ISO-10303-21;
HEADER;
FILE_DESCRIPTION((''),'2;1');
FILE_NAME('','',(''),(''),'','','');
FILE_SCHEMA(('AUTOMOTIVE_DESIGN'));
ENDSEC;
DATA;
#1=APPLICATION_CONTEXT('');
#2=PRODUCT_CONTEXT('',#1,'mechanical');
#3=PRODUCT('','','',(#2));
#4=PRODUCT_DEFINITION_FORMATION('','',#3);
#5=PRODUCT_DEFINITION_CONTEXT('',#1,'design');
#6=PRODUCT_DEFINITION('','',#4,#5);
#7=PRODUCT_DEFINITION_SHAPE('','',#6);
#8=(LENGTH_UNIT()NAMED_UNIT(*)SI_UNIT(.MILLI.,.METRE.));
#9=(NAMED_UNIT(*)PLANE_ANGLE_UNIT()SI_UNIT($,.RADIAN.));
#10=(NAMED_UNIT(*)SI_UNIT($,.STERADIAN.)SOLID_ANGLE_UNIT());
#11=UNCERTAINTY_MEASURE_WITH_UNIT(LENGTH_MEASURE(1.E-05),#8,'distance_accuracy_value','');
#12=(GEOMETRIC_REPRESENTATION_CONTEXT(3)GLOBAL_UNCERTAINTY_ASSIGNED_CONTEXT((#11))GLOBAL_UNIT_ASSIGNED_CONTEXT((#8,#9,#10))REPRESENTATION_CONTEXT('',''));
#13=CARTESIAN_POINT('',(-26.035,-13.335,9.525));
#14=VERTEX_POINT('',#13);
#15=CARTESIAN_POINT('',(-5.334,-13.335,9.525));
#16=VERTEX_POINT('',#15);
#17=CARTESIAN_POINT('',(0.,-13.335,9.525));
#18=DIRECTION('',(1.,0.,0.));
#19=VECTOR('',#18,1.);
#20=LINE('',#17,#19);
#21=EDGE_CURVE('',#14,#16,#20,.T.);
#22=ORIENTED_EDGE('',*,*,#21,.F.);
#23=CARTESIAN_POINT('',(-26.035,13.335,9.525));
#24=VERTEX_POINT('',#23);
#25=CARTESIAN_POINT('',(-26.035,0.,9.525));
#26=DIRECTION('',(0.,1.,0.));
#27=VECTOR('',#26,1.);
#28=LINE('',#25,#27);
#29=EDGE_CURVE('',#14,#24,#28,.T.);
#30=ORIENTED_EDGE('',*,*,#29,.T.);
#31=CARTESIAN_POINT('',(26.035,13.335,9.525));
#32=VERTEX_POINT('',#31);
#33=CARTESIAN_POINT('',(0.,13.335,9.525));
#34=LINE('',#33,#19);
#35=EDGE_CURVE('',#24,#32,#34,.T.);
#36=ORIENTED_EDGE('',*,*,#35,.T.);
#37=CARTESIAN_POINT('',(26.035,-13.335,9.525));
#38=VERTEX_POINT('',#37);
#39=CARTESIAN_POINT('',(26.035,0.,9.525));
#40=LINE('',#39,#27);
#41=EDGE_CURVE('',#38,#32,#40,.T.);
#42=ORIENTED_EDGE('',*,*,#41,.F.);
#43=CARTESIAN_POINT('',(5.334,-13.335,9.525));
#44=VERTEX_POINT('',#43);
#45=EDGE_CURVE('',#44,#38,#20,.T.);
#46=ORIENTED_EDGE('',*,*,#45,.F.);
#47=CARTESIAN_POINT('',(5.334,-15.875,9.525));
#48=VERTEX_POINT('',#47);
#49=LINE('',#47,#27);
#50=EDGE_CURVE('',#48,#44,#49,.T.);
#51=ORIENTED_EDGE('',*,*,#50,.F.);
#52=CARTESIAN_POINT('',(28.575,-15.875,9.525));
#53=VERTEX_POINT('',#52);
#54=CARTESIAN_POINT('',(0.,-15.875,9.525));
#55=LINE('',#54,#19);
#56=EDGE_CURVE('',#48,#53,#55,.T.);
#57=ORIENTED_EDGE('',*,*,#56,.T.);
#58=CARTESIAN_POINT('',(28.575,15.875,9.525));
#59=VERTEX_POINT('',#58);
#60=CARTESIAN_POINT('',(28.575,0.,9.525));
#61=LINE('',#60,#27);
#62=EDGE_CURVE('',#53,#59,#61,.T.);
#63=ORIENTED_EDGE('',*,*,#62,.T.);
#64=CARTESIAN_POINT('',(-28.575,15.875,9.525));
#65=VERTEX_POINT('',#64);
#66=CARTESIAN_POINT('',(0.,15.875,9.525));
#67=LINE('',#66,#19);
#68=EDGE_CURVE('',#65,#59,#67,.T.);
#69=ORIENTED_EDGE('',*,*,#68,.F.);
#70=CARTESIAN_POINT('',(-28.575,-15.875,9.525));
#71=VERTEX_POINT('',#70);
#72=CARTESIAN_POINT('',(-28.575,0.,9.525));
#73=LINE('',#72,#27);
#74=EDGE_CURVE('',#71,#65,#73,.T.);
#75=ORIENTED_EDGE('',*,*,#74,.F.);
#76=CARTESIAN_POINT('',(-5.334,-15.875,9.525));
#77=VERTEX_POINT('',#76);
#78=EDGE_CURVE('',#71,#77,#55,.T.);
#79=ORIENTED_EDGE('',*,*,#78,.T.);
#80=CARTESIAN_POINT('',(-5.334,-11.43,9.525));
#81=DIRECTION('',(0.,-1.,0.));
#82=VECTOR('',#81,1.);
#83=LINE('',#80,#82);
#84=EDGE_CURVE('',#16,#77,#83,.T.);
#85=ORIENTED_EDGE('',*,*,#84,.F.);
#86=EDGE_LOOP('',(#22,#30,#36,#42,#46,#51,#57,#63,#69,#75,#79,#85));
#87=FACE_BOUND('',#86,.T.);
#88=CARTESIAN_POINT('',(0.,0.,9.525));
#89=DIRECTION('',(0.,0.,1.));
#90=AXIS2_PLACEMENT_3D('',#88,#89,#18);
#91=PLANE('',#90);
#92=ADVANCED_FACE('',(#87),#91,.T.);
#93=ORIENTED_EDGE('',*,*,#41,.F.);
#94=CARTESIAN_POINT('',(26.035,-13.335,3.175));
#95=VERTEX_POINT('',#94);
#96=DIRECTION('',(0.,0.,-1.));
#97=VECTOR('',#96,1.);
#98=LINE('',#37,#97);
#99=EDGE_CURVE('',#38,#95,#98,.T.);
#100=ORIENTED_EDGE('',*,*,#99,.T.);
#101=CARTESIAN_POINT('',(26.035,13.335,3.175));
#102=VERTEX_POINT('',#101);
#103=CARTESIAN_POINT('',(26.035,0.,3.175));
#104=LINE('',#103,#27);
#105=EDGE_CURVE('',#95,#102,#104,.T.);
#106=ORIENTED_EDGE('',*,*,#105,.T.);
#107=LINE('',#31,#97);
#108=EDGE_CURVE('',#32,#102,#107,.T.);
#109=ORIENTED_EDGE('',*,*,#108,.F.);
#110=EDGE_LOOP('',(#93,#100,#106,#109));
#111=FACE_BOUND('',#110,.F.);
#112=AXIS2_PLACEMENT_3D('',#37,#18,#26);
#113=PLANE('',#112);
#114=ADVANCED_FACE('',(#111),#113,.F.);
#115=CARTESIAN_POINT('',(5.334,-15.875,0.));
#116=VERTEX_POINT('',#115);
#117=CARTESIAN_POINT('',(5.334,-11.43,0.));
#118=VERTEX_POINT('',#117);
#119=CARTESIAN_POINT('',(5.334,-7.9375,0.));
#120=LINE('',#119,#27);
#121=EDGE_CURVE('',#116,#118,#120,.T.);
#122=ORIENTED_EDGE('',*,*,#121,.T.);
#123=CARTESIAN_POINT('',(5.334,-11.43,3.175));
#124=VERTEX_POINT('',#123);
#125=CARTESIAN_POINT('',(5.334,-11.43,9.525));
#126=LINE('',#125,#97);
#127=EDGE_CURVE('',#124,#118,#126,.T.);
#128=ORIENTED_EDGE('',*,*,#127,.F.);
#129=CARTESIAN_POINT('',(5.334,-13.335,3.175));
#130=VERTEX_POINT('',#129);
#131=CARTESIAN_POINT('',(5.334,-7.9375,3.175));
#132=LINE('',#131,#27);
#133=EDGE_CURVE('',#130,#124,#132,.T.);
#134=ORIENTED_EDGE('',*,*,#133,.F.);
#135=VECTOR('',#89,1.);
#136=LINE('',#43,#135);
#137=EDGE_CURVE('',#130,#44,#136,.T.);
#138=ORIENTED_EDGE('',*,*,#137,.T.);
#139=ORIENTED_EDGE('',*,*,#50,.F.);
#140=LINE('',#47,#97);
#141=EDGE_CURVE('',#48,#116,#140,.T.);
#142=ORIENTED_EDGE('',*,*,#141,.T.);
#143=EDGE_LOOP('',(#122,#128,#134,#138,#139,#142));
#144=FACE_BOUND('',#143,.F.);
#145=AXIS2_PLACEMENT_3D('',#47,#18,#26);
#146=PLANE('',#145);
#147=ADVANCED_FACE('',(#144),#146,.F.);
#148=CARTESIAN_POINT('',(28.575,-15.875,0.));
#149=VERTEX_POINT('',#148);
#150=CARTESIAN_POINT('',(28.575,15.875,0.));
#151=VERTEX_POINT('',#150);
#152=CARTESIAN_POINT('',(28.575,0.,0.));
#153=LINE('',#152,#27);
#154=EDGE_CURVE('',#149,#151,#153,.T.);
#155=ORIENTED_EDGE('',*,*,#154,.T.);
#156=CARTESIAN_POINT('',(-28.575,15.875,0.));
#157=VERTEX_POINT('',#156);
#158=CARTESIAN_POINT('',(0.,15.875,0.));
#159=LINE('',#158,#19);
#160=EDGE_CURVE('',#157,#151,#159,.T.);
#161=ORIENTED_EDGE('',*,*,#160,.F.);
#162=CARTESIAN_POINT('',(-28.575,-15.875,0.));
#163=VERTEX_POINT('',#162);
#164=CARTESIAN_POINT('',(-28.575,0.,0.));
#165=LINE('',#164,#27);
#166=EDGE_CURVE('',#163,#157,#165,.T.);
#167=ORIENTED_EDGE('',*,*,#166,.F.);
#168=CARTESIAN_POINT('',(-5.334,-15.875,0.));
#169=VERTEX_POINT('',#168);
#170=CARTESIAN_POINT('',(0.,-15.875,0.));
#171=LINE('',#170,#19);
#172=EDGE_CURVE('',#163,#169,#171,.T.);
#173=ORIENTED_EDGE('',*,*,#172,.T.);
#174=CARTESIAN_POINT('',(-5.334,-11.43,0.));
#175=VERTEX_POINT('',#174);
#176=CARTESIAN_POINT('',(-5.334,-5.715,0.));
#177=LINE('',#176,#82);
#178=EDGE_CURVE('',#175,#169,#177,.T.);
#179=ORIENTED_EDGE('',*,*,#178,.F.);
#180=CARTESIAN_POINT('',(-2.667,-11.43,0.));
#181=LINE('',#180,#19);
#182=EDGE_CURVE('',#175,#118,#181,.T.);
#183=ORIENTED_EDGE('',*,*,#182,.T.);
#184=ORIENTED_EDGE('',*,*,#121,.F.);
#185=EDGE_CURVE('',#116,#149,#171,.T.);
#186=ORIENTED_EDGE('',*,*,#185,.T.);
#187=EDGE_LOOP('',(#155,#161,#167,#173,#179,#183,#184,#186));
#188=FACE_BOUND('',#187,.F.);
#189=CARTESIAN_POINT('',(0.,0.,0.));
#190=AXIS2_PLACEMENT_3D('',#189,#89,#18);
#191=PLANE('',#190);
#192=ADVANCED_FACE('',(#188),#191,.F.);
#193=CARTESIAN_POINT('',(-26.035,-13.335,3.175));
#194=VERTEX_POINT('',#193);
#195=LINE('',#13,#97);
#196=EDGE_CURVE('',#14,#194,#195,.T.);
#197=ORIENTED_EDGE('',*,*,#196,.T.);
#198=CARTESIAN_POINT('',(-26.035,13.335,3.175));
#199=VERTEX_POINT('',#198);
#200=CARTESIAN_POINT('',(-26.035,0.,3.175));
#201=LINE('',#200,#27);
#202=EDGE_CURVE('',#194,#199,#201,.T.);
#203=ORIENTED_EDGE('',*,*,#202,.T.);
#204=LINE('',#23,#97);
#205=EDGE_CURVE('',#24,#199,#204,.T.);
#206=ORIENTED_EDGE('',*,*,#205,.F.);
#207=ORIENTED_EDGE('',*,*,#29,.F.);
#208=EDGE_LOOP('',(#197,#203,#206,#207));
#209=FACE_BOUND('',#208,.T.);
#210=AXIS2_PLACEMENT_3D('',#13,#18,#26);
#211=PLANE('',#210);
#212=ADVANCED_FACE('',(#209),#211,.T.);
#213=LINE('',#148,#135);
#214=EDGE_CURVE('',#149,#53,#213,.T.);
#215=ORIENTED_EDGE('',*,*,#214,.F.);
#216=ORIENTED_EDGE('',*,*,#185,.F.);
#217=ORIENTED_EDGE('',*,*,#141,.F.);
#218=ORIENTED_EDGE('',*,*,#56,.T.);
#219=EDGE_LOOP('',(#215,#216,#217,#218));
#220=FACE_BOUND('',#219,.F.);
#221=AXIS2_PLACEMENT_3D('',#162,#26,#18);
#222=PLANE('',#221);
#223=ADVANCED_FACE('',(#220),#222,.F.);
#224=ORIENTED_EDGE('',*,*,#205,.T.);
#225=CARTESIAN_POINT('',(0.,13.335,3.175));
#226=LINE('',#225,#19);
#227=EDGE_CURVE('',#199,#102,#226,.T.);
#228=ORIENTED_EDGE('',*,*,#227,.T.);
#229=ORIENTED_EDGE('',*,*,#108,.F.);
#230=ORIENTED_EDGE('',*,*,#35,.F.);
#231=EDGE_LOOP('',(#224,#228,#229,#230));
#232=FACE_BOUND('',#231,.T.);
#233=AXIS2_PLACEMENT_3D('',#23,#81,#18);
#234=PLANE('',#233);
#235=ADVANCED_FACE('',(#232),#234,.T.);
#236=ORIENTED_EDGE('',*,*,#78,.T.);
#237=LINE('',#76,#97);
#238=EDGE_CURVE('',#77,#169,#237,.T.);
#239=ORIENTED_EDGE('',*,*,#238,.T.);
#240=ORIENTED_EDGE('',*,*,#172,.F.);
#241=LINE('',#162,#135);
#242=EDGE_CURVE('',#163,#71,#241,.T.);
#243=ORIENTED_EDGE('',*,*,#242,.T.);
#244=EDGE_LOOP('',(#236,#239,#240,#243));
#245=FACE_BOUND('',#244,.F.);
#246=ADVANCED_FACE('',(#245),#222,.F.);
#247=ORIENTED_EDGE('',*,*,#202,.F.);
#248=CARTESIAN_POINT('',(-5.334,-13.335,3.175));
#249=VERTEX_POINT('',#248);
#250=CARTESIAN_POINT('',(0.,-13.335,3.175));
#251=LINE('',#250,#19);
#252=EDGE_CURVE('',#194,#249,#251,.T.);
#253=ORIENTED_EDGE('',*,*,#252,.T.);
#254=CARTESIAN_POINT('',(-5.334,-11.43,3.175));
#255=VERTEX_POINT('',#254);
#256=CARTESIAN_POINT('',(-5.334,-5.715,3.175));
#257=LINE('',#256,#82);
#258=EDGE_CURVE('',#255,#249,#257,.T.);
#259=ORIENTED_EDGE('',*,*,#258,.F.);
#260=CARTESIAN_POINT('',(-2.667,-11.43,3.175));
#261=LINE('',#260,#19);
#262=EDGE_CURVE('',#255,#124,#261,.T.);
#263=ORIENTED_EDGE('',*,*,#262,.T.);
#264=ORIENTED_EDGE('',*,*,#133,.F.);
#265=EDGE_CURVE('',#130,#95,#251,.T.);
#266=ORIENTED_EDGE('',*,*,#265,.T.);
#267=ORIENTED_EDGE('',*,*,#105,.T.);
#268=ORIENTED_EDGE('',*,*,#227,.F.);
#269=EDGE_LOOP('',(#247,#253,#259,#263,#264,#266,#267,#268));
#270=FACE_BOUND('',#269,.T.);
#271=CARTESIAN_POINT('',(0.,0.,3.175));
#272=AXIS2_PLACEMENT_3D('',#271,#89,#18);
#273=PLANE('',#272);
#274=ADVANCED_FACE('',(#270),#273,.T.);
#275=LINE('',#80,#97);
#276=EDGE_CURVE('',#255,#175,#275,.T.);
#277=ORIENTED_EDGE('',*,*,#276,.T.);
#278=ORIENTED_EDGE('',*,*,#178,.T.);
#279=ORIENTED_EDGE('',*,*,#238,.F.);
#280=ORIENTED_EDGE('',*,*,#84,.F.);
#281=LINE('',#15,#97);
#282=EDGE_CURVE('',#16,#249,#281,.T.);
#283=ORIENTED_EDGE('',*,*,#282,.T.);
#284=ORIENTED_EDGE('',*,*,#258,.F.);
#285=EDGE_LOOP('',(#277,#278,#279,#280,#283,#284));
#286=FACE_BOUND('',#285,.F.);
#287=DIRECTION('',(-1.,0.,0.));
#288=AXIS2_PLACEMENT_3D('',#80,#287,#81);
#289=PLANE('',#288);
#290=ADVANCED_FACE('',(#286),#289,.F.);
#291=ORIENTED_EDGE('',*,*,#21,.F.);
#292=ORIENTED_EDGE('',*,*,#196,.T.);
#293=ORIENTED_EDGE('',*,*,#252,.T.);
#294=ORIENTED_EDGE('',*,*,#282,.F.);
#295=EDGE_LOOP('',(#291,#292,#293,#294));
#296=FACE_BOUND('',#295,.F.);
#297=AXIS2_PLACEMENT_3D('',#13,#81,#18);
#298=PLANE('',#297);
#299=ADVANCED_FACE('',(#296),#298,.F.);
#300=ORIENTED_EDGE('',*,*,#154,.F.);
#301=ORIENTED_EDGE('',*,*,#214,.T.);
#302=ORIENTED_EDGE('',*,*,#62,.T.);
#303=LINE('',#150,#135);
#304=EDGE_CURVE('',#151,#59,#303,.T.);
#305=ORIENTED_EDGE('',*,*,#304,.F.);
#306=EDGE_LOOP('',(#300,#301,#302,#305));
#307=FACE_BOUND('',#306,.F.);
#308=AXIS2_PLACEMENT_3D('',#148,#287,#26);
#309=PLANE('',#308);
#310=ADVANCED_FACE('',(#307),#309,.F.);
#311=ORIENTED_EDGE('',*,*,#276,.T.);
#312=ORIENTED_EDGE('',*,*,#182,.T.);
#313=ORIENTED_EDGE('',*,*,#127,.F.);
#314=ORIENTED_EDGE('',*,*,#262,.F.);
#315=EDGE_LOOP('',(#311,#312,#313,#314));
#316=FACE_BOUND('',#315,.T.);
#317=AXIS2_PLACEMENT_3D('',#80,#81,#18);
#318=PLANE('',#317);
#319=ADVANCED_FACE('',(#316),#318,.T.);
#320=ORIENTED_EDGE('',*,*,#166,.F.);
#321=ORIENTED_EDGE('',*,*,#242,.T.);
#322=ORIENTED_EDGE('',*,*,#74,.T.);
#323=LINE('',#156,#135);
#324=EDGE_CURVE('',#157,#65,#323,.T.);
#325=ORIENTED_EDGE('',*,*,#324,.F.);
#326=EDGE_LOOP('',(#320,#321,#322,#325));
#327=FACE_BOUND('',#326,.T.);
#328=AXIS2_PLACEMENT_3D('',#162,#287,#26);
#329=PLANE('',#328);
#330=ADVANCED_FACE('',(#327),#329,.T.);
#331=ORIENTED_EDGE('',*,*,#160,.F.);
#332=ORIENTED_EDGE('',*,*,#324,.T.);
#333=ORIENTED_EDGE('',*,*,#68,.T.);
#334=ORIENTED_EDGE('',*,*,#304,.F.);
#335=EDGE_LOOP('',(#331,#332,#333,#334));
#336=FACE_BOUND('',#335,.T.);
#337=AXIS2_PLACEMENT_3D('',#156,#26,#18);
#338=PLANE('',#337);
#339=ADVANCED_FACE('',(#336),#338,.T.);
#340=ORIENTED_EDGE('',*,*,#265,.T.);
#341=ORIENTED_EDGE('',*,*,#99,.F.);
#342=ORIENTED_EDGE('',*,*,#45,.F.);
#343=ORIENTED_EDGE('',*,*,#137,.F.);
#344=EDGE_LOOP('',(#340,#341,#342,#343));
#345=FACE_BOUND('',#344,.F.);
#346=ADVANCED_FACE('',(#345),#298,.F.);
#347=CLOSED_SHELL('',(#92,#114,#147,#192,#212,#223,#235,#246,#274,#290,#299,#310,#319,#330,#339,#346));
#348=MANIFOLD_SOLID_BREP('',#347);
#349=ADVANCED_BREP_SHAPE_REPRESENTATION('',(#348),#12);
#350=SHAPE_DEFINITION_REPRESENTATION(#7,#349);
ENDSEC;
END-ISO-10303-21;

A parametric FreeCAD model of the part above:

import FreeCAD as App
import Part
import Sketcher
from FreeCAD import Vector
Q = App.Units.Quantity

doc = App.newDocument("Part")
body = doc.addObject("PartDesign::Body", "Body")

# Sketch on XY plane
sketch1 = doc.addObject("Sketcher::SketchObject", "Sketch")
body.addObject(sketch1)
sketch1.AttachmentSupport = (doc.XY_Plane, [""])
sketch1.MapMode = "FlatFace"
sketch1.addGeometry(Part.LineSegment(Vector(-29, 16, 0), Vector(-29, -16, 0)), False)
sketch1.addGeometry(Part.LineSegment(Vector(-29, -16, 0), Vector(29, -16, 0)), False)
sketch1.addGeometry(Part.LineSegment(Vector(29, -16, 0), Vector(29, 16, 0)), False)
sketch1.addGeometry(Part.LineSegment(Vector(29, 16, 0), Vector(-29, 16, 0)), False)
sketch1.addConstraint(Sketcher.Constraint("Coincident", 0, 2, 1, 1))
sketch1.addConstraint(Sketcher.Constraint("Coincident", 1, 2, 2, 1))
sketch1.addConstraint(Sketcher.Constraint("Coincident", 2, 2, 3, 1))
sketch1.addConstraint(Sketcher.Constraint("Coincident", 3, 2, 0, 1))
sketch1.addConstraint(Sketcher.Constraint("Vertical", 0))
sketch1.addConstraint(Sketcher.Constraint("Horizontal", 1))
sketch1.addConstraint(Sketcher.Constraint("Vertical", 2))
sketch1.addConstraint(Sketcher.Constraint("Horizontal", 3))
sketch1.addConstraint(Sketcher.Constraint("Symmetric", 0, 2, 2, 2, -1, 1))
sketch1.addConstraint(Sketcher.Constraint("DistanceX", 1, 1, 1, 2, Q("2.25 in")))
sketch1.addConstraint(Sketcher.Constraint("DistanceY", 0, 2, 0, 1, Q("1.25 in")))
pad1 = doc.addObject("PartDesign::Pad", "Pad")
body.addObject(pad1)
pad1.Profile = sketch1
pad1.Length = Q("0.375 in")

# Sketch on XY plane
sketch2 = doc.addObject("Sketcher::SketchObject", "Sketch001")
body.addObject(sketch2)
sketch2.AttachmentSupport = (doc.XY_Plane, [""])
sketch2.MapMode = "FlatFace"
sketch2.AttachmentOffset = App.Placement(Vector(0, 0, 0.375 * 25.4), App.Rotation())
sketch2.addGeometry(Part.LineSegment(Vector(-26, 13, 0), Vector(-26, -13, 0)), False)
sketch2.addGeometry(Part.LineSegment(Vector(-26, -13, 0), Vector(26, -13, 0)), False)
sketch2.addGeometry(Part.LineSegment(Vector(26, -13, 0), Vector(26, 13, 0)), False)
sketch2.addGeometry(Part.LineSegment(Vector(26, 13, 0), Vector(-26, 13, 0)), False)
sketch2.addConstraint(Sketcher.Constraint("Coincident", 0, 2, 1, 1))
sketch2.addConstraint(Sketcher.Constraint("Coincident", 1, 2, 2, 1))
sketch2.addConstraint(Sketcher.Constraint("Coincident", 2, 2, 3, 1))
sketch2.addConstraint(Sketcher.Constraint("Coincident", 3, 2, 0, 1))
sketch2.addConstraint(Sketcher.Constraint("Vertical", 0))
sketch2.addConstraint(Sketcher.Constraint("Horizontal", 1))
sketch2.addConstraint(Sketcher.Constraint("Vertical", 2))
sketch2.addConstraint(Sketcher.Constraint("Horizontal", 3))
sketch2.addConstraint(Sketcher.Constraint("Symmetric", 0, 2, 2, 2, -1, 1))
sketch2.addConstraint(Sketcher.Constraint("DistanceX", 1, 1, 1, 2, Q("2.05 in")))
sketch2.addConstraint(Sketcher.Constraint("DistanceY", 0, 2, 0, 1, Q("1.05 in")))
pocket1 = doc.addObject("PartDesign::Pocket", "Pocket")
body.addObject(pocket1)
pocket1.Profile = sketch2
pocket1.Length = Q("0.25 in")

# Sketch on XY plane
sketch3 = doc.addObject("Sketcher::SketchObject", "Sketch002")
body.addObject(sketch3)
sketch3.AttachmentSupport = (doc.XY_Plane, [""])
sketch3.MapMode = "FlatFace"
sketch3.AttachmentOffset = App.Placement(Vector(0, 0, 0.375 * 25.4), App.Rotation())
sketch3.addGeometry(Part.LineSegment(Vector(-5.3, -15.9, 0), Vector(5.3, -15.9, 0)), False)
sketch3.addGeometry(Part.LineSegment(Vector(5.3, -15.9, 0), Vector(5.3, -11.4, 0)), False)
sketch3.addGeometry(Part.LineSegment(Vector(5.3, -11.4, 0), Vector(-5.3, -11.4, 0)), False)
sketch3.addGeometry(Part.LineSegment(Vector(-5.3, -11.4, 0), Vector(-5.3, -15.9, 0)), False)
sketch3.addConstraint(Sketcher.Constraint("Coincident", 0, 2, 1, 1))
sketch3.addConstraint(Sketcher.Constraint("Coincident", 1, 2, 2, 1))
sketch3.addConstraint(Sketcher.Constraint("Coincident", 2, 2, 3, 1))
sketch3.addConstraint(Sketcher.Constraint("Coincident", 3, 2, 0, 1))
sketch3.addConstraint(Sketcher.Constraint("Horizontal", 0))
sketch3.addConstraint(Sketcher.Constraint("Vertical", 1))
sketch3.addConstraint(Sketcher.Constraint("Horizontal", 2))
sketch3.addConstraint(Sketcher.Constraint("Vertical", 3))
sketch3.addConstraint(Sketcher.Constraint("DistanceX", 0, 1, 0, 2, Q("0.42 in")))
sketch3.addConstraint(Sketcher.Constraint("DistanceY", 1, 1, 1, 2, Q("0.175 in")))
sketch3.addConstraint(Sketcher.Constraint("DistanceX", -1, 1, 0, 2, Q("0.21 in")))
sketch3.addConstraint(Sketcher.Constraint("DistanceY", 1, 2, -1, 1, Q("0.45 in")))
pocket2 = doc.addObject("PartDesign::Pocket", "Pocket001")
body.addObject(pocket2)
pocket2.Profile = sketch3
pocket2.Length = Q("1 in")

doc.recompute()
